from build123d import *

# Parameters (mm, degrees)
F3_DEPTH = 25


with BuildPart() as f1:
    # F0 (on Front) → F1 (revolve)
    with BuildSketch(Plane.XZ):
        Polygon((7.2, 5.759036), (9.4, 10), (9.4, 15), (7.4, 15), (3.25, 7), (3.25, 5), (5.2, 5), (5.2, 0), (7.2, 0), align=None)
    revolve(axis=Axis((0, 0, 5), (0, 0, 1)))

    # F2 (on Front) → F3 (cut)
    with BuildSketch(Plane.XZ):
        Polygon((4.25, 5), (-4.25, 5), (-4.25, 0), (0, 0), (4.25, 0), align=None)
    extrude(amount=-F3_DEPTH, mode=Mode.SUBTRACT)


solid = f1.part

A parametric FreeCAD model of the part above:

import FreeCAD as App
import Part
import Sketcher
from FreeCAD import Vector

doc = App.newDocument("Part")
body = doc.addObject("PartDesign::Body", "Body")

# Sketch on XZ plane
sketch1 = body.newObject("Sketcher::SketchObject", "Sketch")
sketch1.AttachmentSupport = (doc.getObject("XZ_Plane"), [""])
sketch1.MapMode = "FlatFace"
sketch1.addGeometry([
    Part.LineSegment(Vector(7.2, 5.759036, 0), Vector(9.4, 10, 0)),  # 0
    Part.LineSegment(Vector(9.4, 10, 0), Vector(9.4, 15, 0)),  # 1
    Part.LineSegment(Vector(9.4, 15, 0), Vector(7.4, 15, 0)),  # 2
    Part.LineSegment(Vector(7.4, 15, 0), Vector(3.25, 7, 0)),  # 3
    Part.LineSegment(Vector(3.25, 7, 0), Vector(3.25, 5, 0)),  # 4
    Part.LineSegment(Vector(3.25, 5, 0), Vector(5.2, 5, 0)),  # 5
    Part.LineSegment(Vector(5.2, 5, 0), Vector(5.2, 0, 0)),  # 6
    Part.LineSegment(Vector(5.2, 0, 0), Vector(7.2, 0, 0)),  # 7
    Part.LineSegment(Vector(7.2, 0, 0), Vector(7.2, 5.759036, 0)),  # 8
], False)
sketch1.addConstraint([
    Sketcher.Constraint("Coincident", 0, 2, 1, 1),
    Sketcher.Constraint("Coincident", 1, 2, 2, 1),
    Sketcher.Constraint("Coincident", 2, 2, 3, 1),
    Sketcher.Constraint("Coincident", 3, 2, 4, 1),
    Sketcher.Constraint("Coincident", 4, 2, 5, 1),
    Sketcher.Constraint("Coincident", 5, 2, 6, 1),
    Sketcher.Constraint("Coincident", 6, 2, 7, 1),
    Sketcher.Constraint("Coincident", 7, 2, 8, 1),
    Sketcher.Constraint("Coincident", 8, 2, 0, 1),
    Sketcher.Constraint("Vertical", 1),
    Sketcher.Constraint("Horizontal", 2),
    Sketcher.Constraint("Vertical", 4),
    Sketcher.Constraint("Horizontal", 5),
    Sketcher.Constraint("Vertical", 6),
    Sketcher.Constraint("Horizontal", 7),
    Sketcher.Constraint("Vertical", 8),
    Sketcher.Constraint("PointOnObject", 6, 2, -1),
    Sketcher.Constraint("Parallel", 0, 3),
    Sketcher.Constraint("Equal", 2, 7),
    Sketcher.Constraint("Equal", 7, 4),
    Sketcher.Constraint("Equal", 1, 6),
    Sketcher.Constraint("DistanceX", 2, 2, 2, 1, 2.0),
    Sketcher.Constraint("DistanceY", 1, 1, 1, 2, 5.0),
    Sketcher.Constraint("DistanceY", -1, 1, 0, 2, 10.0),
    Sketcher.Constraint("DistanceX", 5, 1, 5, 2, 1.95),
    Sketcher.Constraint("DistanceX", -1, 1, 0, 2, 9.4),
    Sketcher.Constraint("DistanceX", -1, 1, 5, 2, 5.2),
])
revolution = body.newObject("PartDesign::Revolution", "Revolution")
revolution.Profile = sketch1
revolution.ReferenceAxis = (sketch1, ["V_Axis"])
revolution.Angle = 360

# Sketch on XZ plane
sketch2 = body.newObject("Sketcher::SketchObject", "Sketch001")
sketch2.AttachmentSupport = (doc.getObject("XZ_Plane"), [""])
sketch2.MapMode = "FlatFace"
sketch2.addGeometry([
    Part.LineSegment(Vector(4.25, 5, 0), Vector(-4.25, 5, 0)),
    Part.LineSegment(Vector(-4.25, 5, 0), Vector(-4.25, 0, 0)),
    Part.LineSegment(Vector(-4.25, 0, 0), Vector(4.25, 0, 0)),
    Part.LineSegment(Vector(4.25, 0, 0), Vector(4.25, 5, 0)),
], False)
sketch2.addConstraint([
    Sketcher.Constraint("Coincident", 0, 2, 1, 1),
    Sketcher.Constraint("Coincident", 1, 2, 2, 1),
    Sketcher.Constraint("Coincident", 2, 2, 3, 1),
    Sketcher.Constraint("Coincident", 3, 2, 0, 1),
    Sketcher.Constraint("Horizontal", 0),
    Sketcher.Constraint("Vertical", 1),
    Sketcher.Constraint("Horizontal", 2),
    Sketcher.Constraint("Vertical", 3),
    Sketcher.Constraint("Symmetric", 1, 2, 2, 2, -1, 1),
    Sketcher.Constraint("DistanceY", 1, 2, 1, 1, 5.0),
    Sketcher.Constraint("DistanceX", 0, 2, 0, 1, 8.5),
])
pocket1 = body.newObject("PartDesign::Pocket", "Pocket")
pocket1.Profile = sketch2
pocket1.Length = 25

doc.recompute()
